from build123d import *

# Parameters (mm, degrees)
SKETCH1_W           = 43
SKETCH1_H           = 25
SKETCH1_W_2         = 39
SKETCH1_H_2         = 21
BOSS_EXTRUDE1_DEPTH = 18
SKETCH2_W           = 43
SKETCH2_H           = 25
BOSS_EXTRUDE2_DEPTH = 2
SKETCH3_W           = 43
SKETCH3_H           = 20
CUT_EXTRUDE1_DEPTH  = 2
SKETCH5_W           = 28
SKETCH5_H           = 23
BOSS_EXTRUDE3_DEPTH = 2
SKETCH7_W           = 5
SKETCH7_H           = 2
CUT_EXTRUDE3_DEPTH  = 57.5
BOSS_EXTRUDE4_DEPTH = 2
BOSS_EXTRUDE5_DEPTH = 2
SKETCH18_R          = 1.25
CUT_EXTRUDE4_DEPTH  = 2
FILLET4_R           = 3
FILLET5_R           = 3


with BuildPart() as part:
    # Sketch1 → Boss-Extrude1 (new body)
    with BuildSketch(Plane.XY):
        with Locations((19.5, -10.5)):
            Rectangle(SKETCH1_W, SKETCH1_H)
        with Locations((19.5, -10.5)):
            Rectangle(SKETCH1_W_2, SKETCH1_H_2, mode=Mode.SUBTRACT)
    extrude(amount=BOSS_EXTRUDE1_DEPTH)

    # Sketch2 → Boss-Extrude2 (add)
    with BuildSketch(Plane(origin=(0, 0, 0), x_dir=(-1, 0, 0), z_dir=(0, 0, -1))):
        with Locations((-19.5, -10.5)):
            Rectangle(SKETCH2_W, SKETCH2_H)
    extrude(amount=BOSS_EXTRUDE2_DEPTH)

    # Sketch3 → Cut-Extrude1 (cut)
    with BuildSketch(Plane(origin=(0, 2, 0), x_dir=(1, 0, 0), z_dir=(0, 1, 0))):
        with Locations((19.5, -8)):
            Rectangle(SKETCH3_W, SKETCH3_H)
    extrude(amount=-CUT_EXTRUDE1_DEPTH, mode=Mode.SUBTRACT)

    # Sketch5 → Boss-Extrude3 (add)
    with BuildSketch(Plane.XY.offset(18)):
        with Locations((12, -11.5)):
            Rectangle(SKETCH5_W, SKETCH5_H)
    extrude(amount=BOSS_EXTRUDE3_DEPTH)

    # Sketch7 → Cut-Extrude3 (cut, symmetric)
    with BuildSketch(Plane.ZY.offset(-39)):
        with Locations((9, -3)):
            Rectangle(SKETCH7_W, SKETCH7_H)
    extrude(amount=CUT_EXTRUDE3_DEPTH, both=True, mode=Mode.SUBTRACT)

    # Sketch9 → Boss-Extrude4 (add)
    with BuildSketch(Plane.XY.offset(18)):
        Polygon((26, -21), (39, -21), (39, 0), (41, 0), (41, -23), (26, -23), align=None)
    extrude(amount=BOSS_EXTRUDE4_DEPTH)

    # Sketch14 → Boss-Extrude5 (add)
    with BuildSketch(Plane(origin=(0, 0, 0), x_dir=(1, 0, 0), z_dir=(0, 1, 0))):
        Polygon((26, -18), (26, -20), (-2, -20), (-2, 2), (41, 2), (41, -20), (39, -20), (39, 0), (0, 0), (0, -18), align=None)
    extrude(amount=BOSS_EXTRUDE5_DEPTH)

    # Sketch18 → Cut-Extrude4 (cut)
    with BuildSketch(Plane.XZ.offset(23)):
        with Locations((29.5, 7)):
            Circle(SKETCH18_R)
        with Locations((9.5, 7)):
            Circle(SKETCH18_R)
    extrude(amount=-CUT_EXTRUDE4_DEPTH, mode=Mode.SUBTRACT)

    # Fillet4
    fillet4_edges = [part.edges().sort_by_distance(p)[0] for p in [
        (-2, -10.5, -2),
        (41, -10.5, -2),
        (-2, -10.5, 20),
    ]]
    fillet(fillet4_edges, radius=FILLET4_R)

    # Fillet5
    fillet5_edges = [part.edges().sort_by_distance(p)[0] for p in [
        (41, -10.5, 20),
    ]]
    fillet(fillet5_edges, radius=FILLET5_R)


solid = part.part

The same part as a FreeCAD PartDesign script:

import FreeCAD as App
import Part
import Sketcher


def edges_at(feature, points):
    """Names of the edges that pass closest to the given points."""
    edges = feature.Shape.Edges
    near = lambda p: min(range(len(edges)), key=lambda i: edges[i].distToShape(Part.Vertex(*p))[0])
    return sorted({f"Edge{near(p) + 1}" for p in points})


def add_polygon(sketch, points):
    """Adds a closed chain of lines whose ends are joined by coincident constraints."""
    first, n = sketch.GeometryCount, len(points)
    for a, b in zip(points, points[1:] + points[:1]):
        sketch.addGeometry(Part.LineSegment(App.Vector(*a, 0), App.Vector(*b, 0)), False)
    for i in range(n):
        sketch.addConstraint(Sketcher.Constraint("Coincident", first + i, 2, first + (i + 1) % n, 1))

doc = App.newDocument("Part")
body = doc.addObject("PartDesign::Body", "Body")

sketch1 = doc.addObject("Sketcher::SketchObject", "Sketch")
body.addObject(sketch1)
sketch1.AttachmentSupport = (doc.XY_Plane, [""])
sketch1.MapMode = "FlatFace"
add_polygon(sketch1, [(-2, 2), (-2, -23), (41, -23), (41, 2)])
add_polygon(sketch1, [(39, -21), (0, -21), (0, 0), (39, 0)])
sketch1.addConstraint([
    Sketcher.Constraint("Vertical", 0),
    Sketcher.Constraint("Horizontal", 1),
    Sketcher.Constraint("Vertical", 2),
    Sketcher.Constraint("Horizontal", 3),
    Sketcher.Constraint("Horizontal", 4),
    Sketcher.Constraint("Vertical", 5),
    Sketcher.Constraint("Horizontal", 6),
    Sketcher.Constraint("Vertical", 7),
    Sketcher.Constraint("Coincident", 5, 2, -1, 1),
    Sketcher.Constraint("DistanceX", 1, 1, 1, 2, 43.0),
    Sketcher.Constraint("DistanceX", 4, 2, 4, 1, 39.0),
    Sketcher.Constraint("DistanceY", 0, 2, 0, 1, 25.0),
    Sketcher.Constraint("DistanceY", 5, 1, 5, 2, 21.0),
    Sketcher.Constraint("DistanceX", 0, 2, -1, 1, 2.0),
    Sketcher.Constraint("DistanceY", 0, 2, -1, 1, 23.0),
])
pad1 = doc.addObject("PartDesign::Pad", "Pad")
body.addObject(pad1)
pad1.Profile = sketch1
pad1.Length = 18

sketch2 = doc.addObject("Sketcher::SketchObject", "Sketch001")
body.addObject(sketch2)
sketch2.AttachmentSupport = (doc.XY_Plane, [""])
sketch2.MapMode = "FlatFace"
add_polygon(sketch2, [(41, 2), (41, -23), (-2, -23), (-2, 2)])
sketch2.addConstraint([
    Sketcher.Constraint("Vertical", 0),
    Sketcher.Constraint("Horizontal", 1),
    Sketcher.Constraint("Vertical", 2),
    Sketcher.Constraint("Horizontal", 3),
    Sketcher.Constraint("DistanceX", 1, 2, 1, 1, 43.0),
    Sketcher.Constraint("DistanceY", 0, 2, 0, 1, 25.0),
    Sketcher.Constraint("DistanceX", -1, 1, 0, 2, 41.0),
    Sketcher.Constraint("DistanceY", 0, 2, -1, 1, 23.0),
])
pad2 = doc.addObject("PartDesign::Pad", "Pad001")
body.addObject(pad2)
pad2.Profile = sketch2
pad2.Length = 2
pad2.Reversed = True

sketch3 = doc.addObject("Sketcher::SketchObject", "Sketch002")
body.addObject(sketch3)
sketch3.AttachmentSupport = (doc.XZ_Plane, [""])
sketch3.MapMode = "FlatFace"
sketch3.AttachmentOffset = App.Placement(App.Vector(0, 0, -2), App.Rotation())
add_polygon(sketch3, [(-2, -2), (-2, 18), (41, 18), (41, -2)])
sketch3.addConstraint([
    Sketcher.Constraint("Vertical", 0),
    Sketcher.Constraint("Horizontal", 1),
    Sketcher.Constraint("Vertical", 2),
    Sketcher.Constraint("Horizontal", 3),
    Sketcher.Constraint("DistanceX", 1, 1, 1, 2, 43.0),
    Sketcher.Constraint("DistanceY", 0, 1, 0, 2, 20.0),
    Sketcher.Constraint("DistanceX", 0, 2, -1, 1, 2.0),
    Sketcher.Constraint("DistanceY", -1, 1, 0, 2, 18.0),
])
pocket1 = doc.addObject("PartDesign::Pocket", "Pocket")
body.addObject(pocket1)
pocket1.Profile = sketch3
pocket1.Length = 2
pocket1.Reversed = True

sketch4 = doc.addObject("Sketcher::SketchObject", "Sketch003")
body.addObject(sketch4)
sketch4.AttachmentSupport = (doc.XY_Plane, [""])
sketch4.MapMode = "FlatFace"
sketch4.AttachmentOffset = App.Placement(App.Vector(0, 0, 18), App.Rotation())
add_polygon(sketch4, [(-2, 0), (-2, -23), (26, -23), (26, 0)])
sketch4.addConstraint([
    Sketcher.Constraint("Vertical", 0),
    Sketcher.Constraint("Horizontal", 1),
    Sketcher.Constraint("Vertical", 2),
    Sketcher.Constraint("Horizontal", 3),
    Sketcher.Constraint("PointOnObject", 2, 2, -1),
    Sketcher.Constraint("DistanceX", 1, 1, 1, 2, 28.0),
    Sketcher.Constraint("DistanceY", 0, 2, 0, 1, 23.0),
    Sketcher.Constraint("DistanceX", 0, 2, -1, 1, 2.0),
])
pad3 = doc.addObject("PartDesign::Pad", "Pad002")
body.addObject(pad3)
pad3.Profile = sketch4
pad3.Length = 2

sketch5 = doc.addObject("Sketcher::SketchObject", "Sketch004")
body.addObject(sketch5)
sketch5.AttachmentSupport = (doc.YZ_Plane, [""])
sketch5.MapMode = "FlatFace"
sketch5.AttachmentOffset = App.Placement(App.Vector(0, 0, 39), App.Rotation())
add_polygon(sketch5, [(-2, 6.5), (-4, 6.5), (-4, 11.5), (-2, 11.5)])
sketch5.addConstraint([
    Sketcher.Constraint("Horizontal", 0),
    Sketcher.Constraint("Vertical", 1),
    Sketcher.Constraint("Horizontal", 2),
    Sketcher.Constraint("Vertical", 3),
    Sketcher.Constraint("DistanceX", 0, 2, 0, 1, 2.0),
    Sketcher.Constraint("DistanceY", 1, 1, 1, 2, 5.0),
    Sketcher.Constraint("DistanceX", 0, 2, -1, 1, 4.0),
    Sketcher.Constraint("DistanceY", -1, 1, 0, 2, 6.5),
])
pocket2 = doc.addObject("PartDesign::Pocket", "Pocket001")
body.addObject(pocket2)
pocket2.Profile = sketch5
pocket2.Length = 115
pocket2.Midplane = True

sketch6 = doc.addObject("Sketcher::SketchObject", "Sketch005")
body.addObject(sketch6)
sketch6.AttachmentSupport = (doc.XY_Plane, [""])
sketch6.MapMode = "FlatFace"
sketch6.AttachmentOffset = App.Placement(App.Vector(0, 0, 18), App.Rotation())
add_polygon(sketch6, [(39, -21), (26, -21), (26, -23), (41, -23), (41, 0), (39, 0)])
sketch6.addConstraint([
    Sketcher.Constraint("Horizontal", 0),
    Sketcher.Constraint("Vertical", 1),
    Sketcher.Constraint("Horizontal", 2),
    Sketcher.Constraint("Vertical", 3),
    Sketcher.Constraint("Horizontal", 4),
    Sketcher.Constraint("Vertical", 5),
    Sketcher.Constraint("PointOnObject", 3, 2, -1),
    Sketcher.Constraint("Equal", 4, 1),
    Sketcher.Constraint("DistanceX", 0, 2, 0, 1, 13.0),
    Sketcher.Constraint("DistanceX", 2, 1, 2, 2, 15.0),
    Sketcher.Constraint("DistanceY", 3, 1, 3, 2, 23.0),
    Sketcher.Constraint("DistanceX", -1, 1, 0, 2, 26.0),
])
pad4 = doc.addObject("PartDesign::Pad", "Pad003")
body.addObject(pad4)
pad4.Profile = sketch6
pad4.Length = 2

sketch7 = doc.addObject("Sketcher::SketchObject", "Sketch006")
body.addObject(sketch7)
sketch7.AttachmentSupport = (doc.XZ_Plane, [""])
sketch7.MapMode = "FlatFace"
add_polygon(sketch7, [(26, 20), (26, 18), (0, 18), (0, 0), (39, 0), (39, 20), (41, 20), (41, -2), (-2, -2), (-2, 20)])
sketch7.addConstraint([
    Sketcher.Constraint("Vertical", 0),
    Sketcher.Constraint("Horizontal", 1),
    Sketcher.Constraint("Vertical", 2),
    Sketcher.Constraint("Horizontal", 3),
    Sketcher.Constraint("Vertical", 4),
    Sketcher.Constraint("Horizontal", 5),
    Sketcher.Constraint("Vertical", 6),
    Sketcher.Constraint("Horizontal", 7),
    Sketcher.Constraint("Vertical", 8),
    Sketcher.Constraint("Horizontal", 9),
    Sketcher.Constraint("Coincident", 2, 2, -1, 1),
    Sketcher.Constraint("Horizontal", 5, 2, 8, 2),
    Sketcher.Constraint("Equal", 5, 0),
    Sketcher.Constraint("DistanceX", 1, 2, 1, 1, 26.0),
    Sketcher.Constraint("DistanceX", 3, 1, 3, 2, 39.0),
    Sketcher.Constraint("DistanceX", 5, 1, 5, 2, 2.0),
    Sketcher.Constraint("DistanceX", 7, 2, 7, 1, 43.0),
    Sketcher.Constraint("DistanceY", 2, 2, 2, 1, 18.0),
    Sketcher.Constraint("DistanceY", 6, 2, 6, 1, 22.0),
])
pad5 = doc.addObject("PartDesign::Pad", "Pad004")
body.addObject(pad5)
pad5.Profile = sketch7
pad5.Length = 2
pad5.Reversed = True

sketch8 = doc.addObject("Sketcher::SketchObject", "Sketch007")
body.addObject(sketch8)
sketch8.AttachmentSupport = (doc.XZ_Plane, [""])
sketch8.MapMode = "FlatFace"
sketch8.AttachmentOffset = App.Placement(App.Vector(0, 0, 23), App.Rotation())
sketch8.addGeometry([
    Part.Circle(App.Vector(29.5, 7, 0), App.Vector(0, 0, 1), 1.25),
    Part.Circle(App.Vector(9.5, 7, 0), App.Vector(0, 0, 1), 1.25),
], False)
sketch8.addConstraint([
    Sketcher.Constraint("Equal", 0, 1),
    Sketcher.Constraint("Horizontal", 0, 3, 1, 3),
    Sketcher.Constraint("Diameter", 0, 2.5),
    Sketcher.Constraint("DistanceY", -1, 1, 0, 3, 7.0),
    Sketcher.Constraint("DistanceX", 1, 3, 0, 3, 20.0),
    Sketcher.Constraint("DistanceX", -1, 1, 0, 3, 29.5),
])
pocket3 = doc.addObject("PartDesign::Pocket", "Pocket002")
body.addObject(pocket3)
pocket3.Profile = sketch8
pocket3.Length = 2
doc.recompute()

fillet = doc.addObject("PartDesign::Fillet", "Fillet")
body.addObject(fillet)
fillet.Base = (pocket3, edges_at(pocket3, [(-2, -10.5, -2), (41, -10.5, -2), (-2, -10.5, 20)]))
fillet.Radius = 3
doc.recompute()

fillet2 = doc.addObject("PartDesign::Fillet", "Fillet001")
body.addObject(fillet2)
fillet2.Base = (fillet, edges_at(fillet, [(41, -10.5, 20)]))
fillet2.Radius = 3

doc.recompute()
